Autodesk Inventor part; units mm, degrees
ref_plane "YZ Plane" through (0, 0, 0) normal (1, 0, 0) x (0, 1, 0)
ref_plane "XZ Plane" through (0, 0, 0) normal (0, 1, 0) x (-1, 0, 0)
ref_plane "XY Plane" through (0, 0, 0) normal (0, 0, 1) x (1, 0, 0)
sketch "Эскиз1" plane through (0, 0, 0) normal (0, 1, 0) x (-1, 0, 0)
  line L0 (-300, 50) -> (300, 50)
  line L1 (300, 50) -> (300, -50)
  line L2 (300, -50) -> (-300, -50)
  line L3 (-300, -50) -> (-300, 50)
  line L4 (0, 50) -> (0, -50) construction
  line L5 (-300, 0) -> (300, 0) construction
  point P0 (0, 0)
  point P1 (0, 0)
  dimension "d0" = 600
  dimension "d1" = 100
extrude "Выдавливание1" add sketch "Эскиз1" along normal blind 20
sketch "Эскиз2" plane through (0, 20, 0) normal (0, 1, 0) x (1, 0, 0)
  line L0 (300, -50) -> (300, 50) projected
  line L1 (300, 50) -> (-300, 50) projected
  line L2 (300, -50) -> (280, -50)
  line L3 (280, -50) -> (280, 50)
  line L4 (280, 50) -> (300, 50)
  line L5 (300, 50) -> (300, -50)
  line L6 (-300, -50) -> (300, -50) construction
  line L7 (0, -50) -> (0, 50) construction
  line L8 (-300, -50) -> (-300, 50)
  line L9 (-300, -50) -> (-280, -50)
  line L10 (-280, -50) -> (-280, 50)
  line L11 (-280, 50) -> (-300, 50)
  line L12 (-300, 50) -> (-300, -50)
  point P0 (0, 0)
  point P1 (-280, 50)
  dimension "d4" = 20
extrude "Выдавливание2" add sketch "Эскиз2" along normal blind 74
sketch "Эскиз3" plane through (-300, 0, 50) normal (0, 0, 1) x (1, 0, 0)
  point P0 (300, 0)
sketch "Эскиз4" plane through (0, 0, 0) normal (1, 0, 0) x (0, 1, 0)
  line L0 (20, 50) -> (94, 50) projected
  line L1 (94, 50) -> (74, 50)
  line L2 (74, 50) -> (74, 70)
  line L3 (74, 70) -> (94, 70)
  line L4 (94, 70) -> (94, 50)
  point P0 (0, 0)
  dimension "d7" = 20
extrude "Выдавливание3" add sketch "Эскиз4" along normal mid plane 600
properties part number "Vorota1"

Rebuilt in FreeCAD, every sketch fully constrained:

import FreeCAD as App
import Part
import Sketcher


def add_polygon(sketch, points):
    """Adds a closed chain of lines whose ends are joined by coincident constraints."""
    first, n = sketch.GeometryCount, len(points)
    for a, b in zip(points, points[1:] + points[:1]):
        sketch.addGeometry(Part.LineSegment(App.Vector(*a, 0), App.Vector(*b, 0)), False)
    for i in range(n):
        sketch.addConstraint(Sketcher.Constraint("Coincident", first + i, 2, first + (i + 1) % n, 1))

doc = App.newDocument("Part")
body = doc.addObject("PartDesign::Body", "Body")

# Sketch on XZ plane
sketch1 = body.newObject("Sketcher::SketchObject", "Sketch")
sketch1.AttachmentSupport = (doc.getObject("XZ_Plane"), [""])
sketch1.MapMode = "FlatFace"
add_polygon(sketch1, [(-300, 50), (300, 50), (300, -50), (-300, -50)])  # lines 0-3
sketch1.addConstraint(Sketcher.Constraint("Horizontal", 0))
sketch1.addConstraint(Sketcher.Constraint("Vertical", 1))
sketch1.addConstraint(Sketcher.Constraint("Horizontal", 2))
sketch1.addConstraint(Sketcher.Constraint("Vertical", 3))
sketch1.addConstraint(Sketcher.Constraint("Symmetric", 0, 2, 2, 2, -1, 1))
sketch1.addConstraint(Sketcher.Constraint("DistanceX", 0, 1, 0, 2, 600.0))
sketch1.addConstraint(Sketcher.Constraint("DistanceY", 1, 2, 1, 1, 100.0))
pad1 = body.newObject("PartDesign::Pad", "Pad")
pad1.Profile = sketch1
pad1.Length = 20
pad1.Reversed = True

# Sketch on XZ plane
sketch2 = body.newObject("Sketcher::SketchObject", "Sketch001")
sketch2.AttachmentSupport = (doc.getObject("XZ_Plane"), [""])
sketch2.MapMode = "FlatFace"
sketch2.AttachmentOffset = App.Placement(App.Vector(0, 0, -20), App.Rotation())
add_polygon(sketch2, [(280, 50), (300, 50), (300, -50), (280, -50)])  # lines 0-3
add_polygon(sketch2, [(-280, 50), (-280, -50), (-300, -50), (-300, 50)])  # lines 4-7
sketch2.addConstraint(Sketcher.Constraint("Horizontal", 0))
sketch2.addConstraint(Sketcher.Constraint("Vertical", 1))
sketch2.addConstraint(Sketcher.Constraint("Horizontal", 2))
sketch2.addConstraint(Sketcher.Constraint("Vertical", 3))
sketch2.addConstraint(Sketcher.Constraint("Vertical", 4))
sketch2.addConstraint(Sketcher.Constraint("Horizontal", 5))
sketch2.addConstraint(Sketcher.Constraint("Vertical", 6))
sketch2.addConstraint(Sketcher.Constraint("Horizontal", 7))
sketch2.addConstraint(Sketcher.Constraint("Symmetric", 3, 2, 4, 2, -1, 1))
sketch2.addConstraint(Sketcher.Constraint("Symmetric", 1, 2, 6, 2, -1, 1))
sketch2.addConstraint(Sketcher.Constraint("Horizontal", 2, 2, 4, 2))
sketch2.addConstraint(Sketcher.Constraint("DistanceX", 0, 1, 0, 2, 20.0))
sketch2.addConstraint(Sketcher.Constraint("DistanceY", 1, 2, 1, 1, 100.0))
sketch2.addConstraint(Sketcher.Constraint("DistanceX", -1, 1, 0, 2, 300.0))
pad2 = body.newObject("PartDesign::Pad", "Pad001")
pad2.Profile = sketch2
pad2.Length = 74
pad2.Reversed = True

# Sketch on YZ plane
sketch3 = body.newObject("Sketcher::SketchObject", "Sketch002")
sketch3.AttachmentSupport = (doc.getObject("YZ_Plane"), [""])
sketch3.MapMode = "FlatFace"
add_polygon(sketch3, [(74, 70), (74, 50), (94, 50), (94, 70)])  # lines 0-3
sketch3.addConstraint(Sketcher.Constraint("Vertical", 0))
sketch3.addConstraint(Sketcher.Constraint("Horizontal", 1))
sketch3.addConstraint(Sketcher.Constraint("Vertical", 2))
sketch3.addConstraint(Sketcher.Constraint("Horizontal", 3))
sketch3.addConstraint(Sketcher.Constraint("Equal", 3, 0))
sketch3.addConstraint(Sketcher.Constraint("DistanceX", 1, 1, 1, 2, 20.0))
sketch3.addConstraint(Sketcher.Constraint("DistanceX", -1, 1, 0, 2, 74.0))
sketch3.addConstraint(Sketcher.Constraint("DistanceY", -1, 1, 0, 2, 50.0))
pad3 = body.newObject("PartDesign::Pad", "Pad002")
pad3.Profile = sketch3
pad3.Length = 600
pad3.Midplane = True

doc.recompute()
